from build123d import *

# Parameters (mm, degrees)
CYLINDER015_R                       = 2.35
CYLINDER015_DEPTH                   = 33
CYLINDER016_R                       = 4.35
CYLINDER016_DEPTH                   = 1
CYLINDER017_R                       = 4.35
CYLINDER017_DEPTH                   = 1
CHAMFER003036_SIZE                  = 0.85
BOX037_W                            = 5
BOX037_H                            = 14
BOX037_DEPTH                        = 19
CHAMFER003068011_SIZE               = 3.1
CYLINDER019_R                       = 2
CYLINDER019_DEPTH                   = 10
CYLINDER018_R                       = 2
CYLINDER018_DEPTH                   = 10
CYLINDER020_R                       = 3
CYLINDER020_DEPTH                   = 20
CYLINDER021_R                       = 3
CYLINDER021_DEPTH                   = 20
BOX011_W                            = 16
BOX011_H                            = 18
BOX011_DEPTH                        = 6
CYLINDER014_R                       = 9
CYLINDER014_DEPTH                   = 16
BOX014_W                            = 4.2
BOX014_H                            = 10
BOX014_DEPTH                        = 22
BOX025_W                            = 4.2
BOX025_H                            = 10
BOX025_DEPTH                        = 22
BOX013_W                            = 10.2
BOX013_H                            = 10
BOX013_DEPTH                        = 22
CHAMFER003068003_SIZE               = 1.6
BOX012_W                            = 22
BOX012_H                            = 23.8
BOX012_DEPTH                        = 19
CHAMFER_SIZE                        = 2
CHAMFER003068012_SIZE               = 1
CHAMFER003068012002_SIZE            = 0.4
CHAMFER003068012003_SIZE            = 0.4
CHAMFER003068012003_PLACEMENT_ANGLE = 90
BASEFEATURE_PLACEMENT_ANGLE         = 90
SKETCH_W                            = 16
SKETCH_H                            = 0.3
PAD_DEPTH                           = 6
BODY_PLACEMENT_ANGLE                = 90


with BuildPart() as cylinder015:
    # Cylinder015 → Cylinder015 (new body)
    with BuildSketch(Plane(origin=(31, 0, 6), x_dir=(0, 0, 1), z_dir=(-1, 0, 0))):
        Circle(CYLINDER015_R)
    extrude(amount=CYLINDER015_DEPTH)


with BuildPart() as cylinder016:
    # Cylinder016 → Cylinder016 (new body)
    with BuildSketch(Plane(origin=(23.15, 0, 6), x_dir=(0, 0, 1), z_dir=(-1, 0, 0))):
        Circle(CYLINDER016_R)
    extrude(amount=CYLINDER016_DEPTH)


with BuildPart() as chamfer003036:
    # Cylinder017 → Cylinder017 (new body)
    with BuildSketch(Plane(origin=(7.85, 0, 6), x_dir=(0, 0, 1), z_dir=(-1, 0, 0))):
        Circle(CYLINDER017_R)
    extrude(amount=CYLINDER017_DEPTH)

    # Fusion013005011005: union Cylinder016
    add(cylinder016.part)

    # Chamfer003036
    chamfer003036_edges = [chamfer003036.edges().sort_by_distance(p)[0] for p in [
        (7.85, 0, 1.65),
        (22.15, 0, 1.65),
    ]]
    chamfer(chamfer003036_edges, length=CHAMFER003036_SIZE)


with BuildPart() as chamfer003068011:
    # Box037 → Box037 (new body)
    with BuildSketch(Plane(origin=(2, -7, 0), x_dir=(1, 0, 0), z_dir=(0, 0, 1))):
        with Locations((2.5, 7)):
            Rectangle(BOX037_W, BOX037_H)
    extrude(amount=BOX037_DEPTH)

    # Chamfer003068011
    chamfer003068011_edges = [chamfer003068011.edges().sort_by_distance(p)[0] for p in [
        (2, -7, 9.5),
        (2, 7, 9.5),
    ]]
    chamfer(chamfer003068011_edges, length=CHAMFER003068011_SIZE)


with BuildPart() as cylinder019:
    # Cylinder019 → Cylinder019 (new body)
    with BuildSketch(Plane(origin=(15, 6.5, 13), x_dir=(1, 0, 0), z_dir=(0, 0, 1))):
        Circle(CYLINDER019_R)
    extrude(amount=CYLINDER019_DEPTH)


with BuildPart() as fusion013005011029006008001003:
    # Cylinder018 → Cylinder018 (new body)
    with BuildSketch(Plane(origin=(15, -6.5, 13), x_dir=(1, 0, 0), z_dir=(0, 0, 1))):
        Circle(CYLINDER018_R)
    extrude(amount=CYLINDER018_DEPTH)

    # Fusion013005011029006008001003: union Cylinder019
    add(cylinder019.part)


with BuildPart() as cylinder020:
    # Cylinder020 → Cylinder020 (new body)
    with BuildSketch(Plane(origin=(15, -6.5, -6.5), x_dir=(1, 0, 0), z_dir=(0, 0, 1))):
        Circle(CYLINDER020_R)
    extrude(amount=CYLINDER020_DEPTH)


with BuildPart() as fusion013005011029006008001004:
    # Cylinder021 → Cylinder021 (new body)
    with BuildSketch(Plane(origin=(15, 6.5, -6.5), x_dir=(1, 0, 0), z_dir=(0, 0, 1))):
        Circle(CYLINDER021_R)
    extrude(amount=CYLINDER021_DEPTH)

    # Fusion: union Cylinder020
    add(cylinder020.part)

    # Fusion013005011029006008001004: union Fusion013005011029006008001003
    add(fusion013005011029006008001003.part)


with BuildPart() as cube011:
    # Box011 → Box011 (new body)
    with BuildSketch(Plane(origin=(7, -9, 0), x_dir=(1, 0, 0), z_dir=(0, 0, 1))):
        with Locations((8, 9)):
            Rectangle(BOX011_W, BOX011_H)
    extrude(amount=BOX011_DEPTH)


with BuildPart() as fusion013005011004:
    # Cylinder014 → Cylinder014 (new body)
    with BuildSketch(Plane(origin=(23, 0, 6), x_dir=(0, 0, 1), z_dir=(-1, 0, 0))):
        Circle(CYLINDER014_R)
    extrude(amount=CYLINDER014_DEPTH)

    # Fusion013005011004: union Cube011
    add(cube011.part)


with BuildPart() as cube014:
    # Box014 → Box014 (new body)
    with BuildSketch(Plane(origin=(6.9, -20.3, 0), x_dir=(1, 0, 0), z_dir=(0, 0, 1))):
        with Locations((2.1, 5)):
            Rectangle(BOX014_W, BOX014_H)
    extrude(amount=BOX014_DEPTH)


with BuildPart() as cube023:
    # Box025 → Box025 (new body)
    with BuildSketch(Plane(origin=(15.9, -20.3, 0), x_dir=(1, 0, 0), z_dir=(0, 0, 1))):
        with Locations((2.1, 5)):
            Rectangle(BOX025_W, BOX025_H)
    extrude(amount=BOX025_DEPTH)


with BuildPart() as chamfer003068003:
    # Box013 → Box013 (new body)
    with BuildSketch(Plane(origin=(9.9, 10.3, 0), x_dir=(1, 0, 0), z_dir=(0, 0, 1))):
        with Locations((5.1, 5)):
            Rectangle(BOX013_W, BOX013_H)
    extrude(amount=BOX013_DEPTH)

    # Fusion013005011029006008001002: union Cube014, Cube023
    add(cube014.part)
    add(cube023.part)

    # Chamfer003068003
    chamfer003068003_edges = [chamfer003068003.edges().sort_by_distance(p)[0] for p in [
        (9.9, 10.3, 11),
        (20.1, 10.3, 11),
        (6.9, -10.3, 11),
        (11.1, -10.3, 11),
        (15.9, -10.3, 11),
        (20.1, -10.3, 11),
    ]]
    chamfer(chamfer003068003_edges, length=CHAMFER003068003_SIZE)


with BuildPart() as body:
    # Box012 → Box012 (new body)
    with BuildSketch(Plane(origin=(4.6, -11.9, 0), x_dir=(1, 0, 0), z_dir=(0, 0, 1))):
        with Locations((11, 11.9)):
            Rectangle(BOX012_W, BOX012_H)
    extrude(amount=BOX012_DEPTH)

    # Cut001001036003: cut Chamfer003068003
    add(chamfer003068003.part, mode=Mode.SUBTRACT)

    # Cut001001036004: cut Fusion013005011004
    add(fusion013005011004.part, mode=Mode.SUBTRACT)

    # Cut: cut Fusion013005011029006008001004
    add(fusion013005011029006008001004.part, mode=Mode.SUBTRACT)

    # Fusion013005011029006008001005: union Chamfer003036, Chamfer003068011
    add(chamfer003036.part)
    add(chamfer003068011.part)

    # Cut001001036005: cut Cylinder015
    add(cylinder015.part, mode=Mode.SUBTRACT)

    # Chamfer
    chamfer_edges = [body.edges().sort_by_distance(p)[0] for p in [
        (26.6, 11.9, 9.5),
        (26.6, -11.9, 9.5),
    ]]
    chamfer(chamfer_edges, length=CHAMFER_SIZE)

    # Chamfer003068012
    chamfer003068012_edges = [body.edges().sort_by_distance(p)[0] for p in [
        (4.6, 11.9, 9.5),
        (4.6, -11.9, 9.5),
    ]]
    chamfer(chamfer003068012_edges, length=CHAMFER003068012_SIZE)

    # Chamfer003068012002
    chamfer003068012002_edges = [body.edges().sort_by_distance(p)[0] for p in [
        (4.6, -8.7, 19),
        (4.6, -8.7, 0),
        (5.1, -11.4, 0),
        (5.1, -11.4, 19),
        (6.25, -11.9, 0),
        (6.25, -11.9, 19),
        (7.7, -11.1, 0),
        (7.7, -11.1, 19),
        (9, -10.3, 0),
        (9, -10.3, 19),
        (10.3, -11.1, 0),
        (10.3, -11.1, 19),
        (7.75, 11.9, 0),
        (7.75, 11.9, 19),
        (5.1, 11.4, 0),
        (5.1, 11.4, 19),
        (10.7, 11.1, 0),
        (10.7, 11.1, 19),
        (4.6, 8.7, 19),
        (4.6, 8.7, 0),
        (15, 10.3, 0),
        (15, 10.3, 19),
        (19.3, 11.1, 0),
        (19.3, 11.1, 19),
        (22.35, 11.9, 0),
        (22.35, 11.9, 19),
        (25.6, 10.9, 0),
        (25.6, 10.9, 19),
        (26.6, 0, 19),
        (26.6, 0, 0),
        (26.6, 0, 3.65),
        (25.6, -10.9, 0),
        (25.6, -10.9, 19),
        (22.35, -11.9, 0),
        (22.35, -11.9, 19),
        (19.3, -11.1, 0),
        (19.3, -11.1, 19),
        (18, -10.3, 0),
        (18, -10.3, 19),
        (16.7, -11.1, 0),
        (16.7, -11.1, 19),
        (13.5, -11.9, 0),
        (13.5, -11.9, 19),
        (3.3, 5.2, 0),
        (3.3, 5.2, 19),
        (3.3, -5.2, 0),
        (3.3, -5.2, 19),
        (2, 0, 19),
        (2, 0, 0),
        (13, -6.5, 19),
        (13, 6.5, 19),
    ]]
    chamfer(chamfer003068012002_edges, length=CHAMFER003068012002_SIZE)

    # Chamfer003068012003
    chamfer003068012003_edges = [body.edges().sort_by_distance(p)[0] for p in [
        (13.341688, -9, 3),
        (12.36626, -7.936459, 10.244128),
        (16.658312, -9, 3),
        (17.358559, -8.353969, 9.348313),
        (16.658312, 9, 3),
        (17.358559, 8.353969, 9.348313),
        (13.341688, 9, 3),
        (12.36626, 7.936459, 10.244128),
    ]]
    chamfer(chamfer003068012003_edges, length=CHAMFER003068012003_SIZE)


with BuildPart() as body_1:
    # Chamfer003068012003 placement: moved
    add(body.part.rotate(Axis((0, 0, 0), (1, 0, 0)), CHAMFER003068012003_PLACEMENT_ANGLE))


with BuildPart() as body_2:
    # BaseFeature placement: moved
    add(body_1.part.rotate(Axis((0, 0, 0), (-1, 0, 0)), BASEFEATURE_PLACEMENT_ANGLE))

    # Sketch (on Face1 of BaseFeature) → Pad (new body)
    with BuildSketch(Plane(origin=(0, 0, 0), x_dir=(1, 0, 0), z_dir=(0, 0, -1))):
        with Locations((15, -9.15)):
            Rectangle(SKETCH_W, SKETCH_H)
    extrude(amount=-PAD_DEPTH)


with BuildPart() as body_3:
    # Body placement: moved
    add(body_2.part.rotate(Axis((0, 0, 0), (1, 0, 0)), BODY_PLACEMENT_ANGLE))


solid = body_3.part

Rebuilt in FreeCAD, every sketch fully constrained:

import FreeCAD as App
import Part
import Sketcher
from FreeCAD import Vector
Q = App.Units.Quantity


def edges_at(feature, points):
    """Names of the edges that pass closest to the given points."""
    edges = feature.Shape.Edges
    near = lambda p: min(range(len(edges)), key=lambda i: edges[i].distToShape(Part.Vertex(*p))[0])
    return sorted({f"Edge{near(p) + 1}" for p in points})


def add_polygon(sketch, points):
    """Adds a closed chain of lines whose ends are joined by coincident constraints."""
    first, n = sketch.GeometryCount, len(points)
    for a, b in zip(points, points[1:] + points[:1]):
        sketch.addGeometry(Part.LineSegment(App.Vector(*a, 0), App.Vector(*b, 0)), False)
    for i in range(n):
        sketch.addConstraint(Sketcher.Constraint("Coincident", first + i, 2, first + (i + 1) % n, 1))

doc = App.newDocument("Part")
params = doc.addObject("Spreadsheet::Sheet", "Params")
for row, (alias, value) in enumerate([
    ("sketch1_diameter", "4.7 mm"),
    ("pad1_length", "33 mm"),
    ("sketch2_diameter", "8.7 mm"),
    ("pad2_length", "1 mm"),
    ("sketch3_diameter", "8.7 mm"),
    ("pad3_length", "1 mm"),
    ("chamfer_size", "0.85 mm"),
    ("sketch4_width", "5 mm"),
    ("sketch4_height", "14 mm"),
    ("pad4_length", "19 mm"),
    ("chamfer2_size", "3.1 mm"),
    ("sketch5_diameter", "4 mm"),
    ("pad5_length", "10 mm"),
    ("sketch6_diameter", "4 mm"),
    ("pad6_length", "10 mm"),
    ("sketch7_diameter", "6 mm"),
    ("pad7_length", "20 mm"),
    ("sketch8_diameter", "6 mm"),
    ("pad8_length", "20 mm"),
    ("sketch9_width", "16 mm"),
    ("sketch9_height", "18 mm"),
    ("pad9_length", "6 mm"),
    ("sketch10_diameter", "18 mm"),
    ("pad10_length", "16 mm"),
    ("sketch11_height", "10 mm"),
    ("sketch11_width", "4.2 mm"),
    ("pad11_length", "22 mm"),
    ("sketch12_height", "10 mm"),
    ("sketch12_width", "4.2 mm"),
    ("pad12_length", "22 mm"),
    ("sketch13_height", "10 mm"),
    ("sketch13_width", "10.2 mm"),
    ("pad13_length", "22 mm"),
    ("chamfer3_size", "1.6 mm"),
    ("sketch14_width", "22 mm"),
    ("sketch14_height", "23.8 mm"),
    ("pad14_length", "19 mm"),
    ("chamfer4_size", "2 mm"),
    ("chamfer5_size", "1 mm"),
    ("chamfer6_size", "0.4 mm"),
    ("chamfer7_size", "0.4 mm"),
    ("sketch15_width", "16 mm"),
    ("sketch15_height", "0.3 mm"),
    ("pad15_length", "6 mm"),
], start=1):
    params.set(f"A{row}", alias)
    params.set(f"B{row}", "=" + value)
    params.setAlias(f"B{row}", alias)

body = doc.addObject("PartDesign::Body", "Body")

# Sketch on YZ plane
sketch1 = body.newObject("Sketcher::SketchObject", "Sketch")
sketch1.AttachmentSupport = (doc.getObject("YZ_Plane"), [""])
sketch1.MapMode = "FlatFace"
sketch1.AttachmentOffset = App.Placement(Vector(0, 0, 31), App.Rotation())
sketch1.addGeometry(Part.Circle(Vector(0, 6, 0), Vector(0, 0, 1), 2.4), False)
sketch1.addConstraint([
    Sketcher.Constraint("PointOnObject", 0, 3, -2),
    Sketcher.Constraint("Diameter", 0, Q("4.7 mm")),
    Sketcher.Constraint("DistanceY", -1, 1, 0, 3, Q("6 mm")),
])
sketch1.setExpression("Constraints[1]", "Params.sketch1_diameter")
pad1 = body.newObject("PartDesign::Pad", "Pad")
pad1.Profile = sketch1
pad1.setExpression("Length", "Params.pad1_length")
pad1.Reversed = True
body2 = doc.addObject("PartDesign::Body", "Body001")

# Sketch on YZ plane
sketch2 = body2.newObject("Sketcher::SketchObject", "Sketch001")
sketch2.AttachmentSupport = (doc.getObject("YZ_Plane001"), [""])
sketch2.MapMode = "FlatFace"
sketch2.AttachmentOffset = App.Placement(Vector(0, 0, 23.15), App.Rotation())
sketch2.addGeometry(Part.Circle(Vector(0, 6, 0), Vector(0, 0, 1), 4.3), False)
sketch2.addConstraint([
    Sketcher.Constraint("PointOnObject", 0, 3, -2),
    Sketcher.Constraint("Diameter", 0, Q("8.7 mm")),
    Sketcher.Constraint("DistanceY", -1, 1, 0, 3, Q("6 mm")),
])
sketch2.setExpression("Constraints[1]", "Params.sketch2_diameter")
pad2 = body2.newObject("PartDesign::Pad", "Pad001")
pad2.Profile = sketch2
pad2.setExpression("Length", "Params.pad2_length")
pad2.Reversed = True
body3 = doc.addObject("PartDesign::Body", "Body002")
body3.AllowCompound = True

# Sketch on YZ plane
sketch3 = body3.newObject("Sketcher::SketchObject", "Sketch002")
sketch3.AttachmentSupport = (doc.getObject("YZ_Plane002"), [""])
sketch3.MapMode = "FlatFace"
sketch3.AttachmentOffset = App.Placement(Vector(0, 0, 7.85), App.Rotation())
sketch3.addGeometry(Part.Circle(Vector(0, 6, 0), Vector(0, 0, 1), 4.3), False)
sketch3.addConstraint([
    Sketcher.Constraint("PointOnObject", 0, 3, -2),
    Sketcher.Constraint("Diameter", 0, Q("8.7 mm")),
    Sketcher.Constraint("DistanceY", -1, 1, 0, 3, Q("6 mm")),
])
sketch3.setExpression("Constraints[1]", "Params.sketch3_diameter")
pad3 = body3.newObject("PartDesign::Pad", "Pad002")
pad3.Profile = sketch3
pad3.setExpression("Length", "Params.pad3_length")
pad3.Reversed = True
doc.recompute()

boolean = body3.newObject("PartDesign::Boolean", "Boolean")
boolean.Type = "Fuse"
boolean.addObjects([body2])
doc.recompute()

chamfer = body3.newObject("PartDesign::Chamfer", "Chamfer")
chamfer.Base = (boolean, edges_at(boolean, [(7.85, 0, 1.65), (22.15, 0, 1.65)]))
chamfer.setExpression("Size", "Params.chamfer_size")
body4 = doc.addObject("PartDesign::Body", "Body003")

# Sketch on XY plane
sketch4 = body4.newObject("Sketcher::SketchObject", "Sketch003")
sketch4.AttachmentSupport = (doc.getObject("XY_Plane003"), [""])
sketch4.MapMode = "FlatFace"
add_polygon(sketch4, [(2, 7), (2, -7), (7, -7), (7, 7)])  # lines 0-3
sketch4.addConstraint([
    Sketcher.Constraint("Vertical", 0),
    Sketcher.Constraint("Horizontal", 1),
    Sketcher.Constraint("Vertical", 2),
    Sketcher.Constraint("Horizontal", 3),
    Sketcher.Constraint("DistanceX", 1, 1, 1, 2, Q("5 mm")),
    Sketcher.Constraint("DistanceY", 0, 2, 0, 1, Q("14 mm")),
    Sketcher.Constraint("DistanceX", -1, 1, 0, 2, Q("2 mm")),
    Sketcher.Constraint("DistanceY", 0, 2, -1, 1, Q("7 mm")),
])
sketch4.setExpression("Constraints[8]", "Params.sketch4_width")
sketch4.setExpression("Constraints[9]", "Params.sketch4_height")
pad4 = body4.newObject("PartDesign::Pad", "Pad003")
pad4.Profile = sketch4
pad4.setExpression("Length", "Params.pad4_length")
doc.recompute()

chamfer2 = body4.newObject("PartDesign::Chamfer", "Chamfer001")
chamfer2.Base = (pad4, edges_at(pad4, [(2, -7, 9.5), (2, 7, 9.5)]))
chamfer2.setExpression("Size", "Params.chamfer2_size")
body5 = doc.addObject("PartDesign::Body", "Body004")

# Sketch on XY plane
sketch5 = body5.newObject("Sketcher::SketchObject", "Sketch004")
sketch5.AttachmentSupport = (doc.getObject("XY_Plane004"), [""])
sketch5.MapMode = "FlatFace"
sketch5.AttachmentOffset = App.Placement(Vector(0, 0, 13), App.Rotation())
sketch5.addGeometry(Part.Circle(Vector(15, 6.5, 0), Vector(0, 0, 1), 2), False)
sketch5.addConstraint([
    Sketcher.Constraint("Diameter", 0, Q("4 mm")),
    Sketcher.Constraint("DistanceX", -1, 1, 0, 3, Q("15 mm")),
    Sketcher.Constraint("DistanceY", -1, 1, 0, 3, Q("6.5 mm")),
])
sketch5.setExpression("Constraints[0]", "Params.sketch5_diameter")
pad5 = body5.newObject("PartDesign::Pad", "Pad004")
pad5.Profile = sketch5
pad5.setExpression("Length", "Params.pad5_length")
body6 = doc.addObject("PartDesign::Body", "Body005")
body6.AllowCompound = True

# Sketch on XY plane
sketch6 = body6.newObject("Sketcher::SketchObject", "Sketch005")
sketch6.AttachmentSupport = (doc.getObject("XY_Plane005"), [""])
sketch6.MapMode = "FlatFace"
sketch6.AttachmentOffset = App.Placement(Vector(0, 0, 13), App.Rotation())
sketch6.addGeometry(Part.Circle(Vector(15, -6.5, 0), Vector(0, 0, 1), 2), False)
sketch6.addConstraint([
    Sketcher.Constraint("Diameter", 0, Q("4 mm")),
    Sketcher.Constraint("DistanceX", -1, 1, 0, 3, Q("15 mm")),
    Sketcher.Constraint("DistanceY", 0, 3, -1, 1, Q("6.5 mm")),
])
sketch6.setExpression("Constraints[0]", "Params.sketch6_diameter")
pad6 = body6.newObject("PartDesign::Pad", "Pad005")
pad6.Profile = sketch6
pad6.setExpression("Length", "Params.pad6_length")
doc.recompute()

boolean2 = body6.newObject("PartDesign::Boolean", "Boolean001")
boolean2.Type = "Fuse"
boolean2.addObjects([body5])
body7 = doc.addObject("PartDesign::Body", "Body006")

# Sketch on XY plane
sketch7 = body7.newObject("Sketcher::SketchObject", "Sketch006")
sketch7.AttachmentSupport = (doc.getObject("XY_Plane006"), [""])
sketch7.MapMode = "FlatFace"
sketch7.AttachmentOffset = App.Placement(Vector(0, 0, -6.5), App.Rotation())
sketch7.addGeometry(Part.Circle(Vector(15, -6.5, 0), Vector(0, 0, 1), 3), False)
sketch7.addConstraint([
    Sketcher.Constraint("Diameter", 0, Q("6 mm")),
    Sketcher.Constraint("DistanceX", -1, 1, 0, 3, Q("15 mm")),
    Sketcher.Constraint("DistanceY", 0, 3, -1, 1, Q("6.5 mm")),
])
sketch7.setExpression("Constraints[0]", "Params.sketch7_diameter")
pad7 = body7.newObject("PartDesign::Pad", "Pad006")
pad7.Profile = sketch7
pad7.setExpression("Length", "Params.pad7_length")
body8 = doc.addObject("PartDesign::Body", "Body007")
body8.AllowCompound = True

# Sketch on XY plane
sketch8 = body8.newObject("Sketcher::SketchObject", "Sketch007")
sketch8.AttachmentSupport = (doc.getObject("XY_Plane007"), [""])
sketch8.MapMode = "FlatFace"
sketch8.AttachmentOffset = App.Placement(Vector(0, 0, -6.5), App.Rotation())
sketch8.addGeometry(Part.Circle(Vector(15, 6.5, 0), Vector(0, 0, 1), 3), False)
sketch8.addConstraint([
    Sketcher.Constraint("Diameter", 0, Q("6 mm")),
    Sketcher.Constraint("DistanceX", -1, 1, 0, 3, Q("15 mm")),
    Sketcher.Constraint("DistanceY", -1, 1, 0, 3, Q("6.5 mm")),
])
sketch8.setExpression("Constraints[0]", "Params.sketch8_diameter")
pad8 = body8.newObject("PartDesign::Pad", "Pad007")
pad8.Profile = sketch8
pad8.setExpression("Length", "Params.pad8_length")
doc.recompute()

boolean3 = body8.newObject("PartDesign::Boolean", "Boolean002")
boolean3.Type = "Fuse"
boolean3.addObjects([body7])
doc.recompute()

boolean4 = body8.newObject("PartDesign::Boolean", "Boolean003")
boolean4.Type = "Fuse"
boolean4.addObjects([body6])
body9 = doc.addObject("PartDesign::Body", "Body008")

# Sketch on XY plane
sketch9 = body9.newObject("Sketcher::SketchObject", "Sketch008")
sketch9.AttachmentSupport = (doc.getObject("XY_Plane008"), [""])
sketch9.MapMode = "FlatFace"
add_polygon(sketch9, [(7, 9), (7, -9), (23, -9), (23, 9)])  # lines 0-3
sketch9.addConstraint([
    Sketcher.Constraint("Vertical", 0),
    Sketcher.Constraint("Horizontal", 1),
    Sketcher.Constraint("Vertical", 2),
    Sketcher.Constraint("Horizontal", 3),
    Sketcher.Constraint("DistanceX", 1, 1, 1, 2, Q("16 mm")),
    Sketcher.Constraint("DistanceY", 0, 2, 0, 1, Q("18 mm")),
    Sketcher.Constraint("DistanceX", -1, 1, 0, 2, Q("7 mm")),
    Sketcher.Constraint("DistanceY", 0, 2, -1, 1, Q("9 mm")),
])
sketch9.setExpression("Constraints[8]", "Params.sketch9_width")
sketch9.setExpression("Constraints[9]", "Params.sketch9_height")
pad9 = body9.newObject("PartDesign::Pad", "Pad008")
pad9.Profile = sketch9
pad9.setExpression("Length", "Params.pad9_length")
body10 = doc.addObject("PartDesign::Body", "Body009")

# Sketch on YZ plane
sketch10 = body10.newObject("Sketcher::SketchObject", "Sketch009")
sketch10.AttachmentSupport = (doc.getObject("YZ_Plane009"), [""])
sketch10.MapMode = "FlatFace"
sketch10.AttachmentOffset = App.Placement(Vector(0, 0, 23), App.Rotation())
sketch10.addGeometry(Part.Circle(Vector(0, 6, 0), Vector(0, 0, 1), 9), False)
sketch10.addConstraint([
    Sketcher.Constraint("PointOnObject", 0, 3, -2),
    Sketcher.Constraint("Diameter", 0, Q("18 mm")),
    Sketcher.Constraint("DistanceY", -1, 1, 0, 3, Q("6 mm")),
])
sketch10.setExpression("Constraints[1]", "Params.sketch10_diameter")
pad10 = body10.newObject("PartDesign::Pad", "Pad009")
pad10.Profile = sketch10
pad10.setExpression("Length", "Params.pad10_length")
pad10.Reversed = True
doc.recompute()

boolean5 = body10.newObject("PartDesign::Boolean", "Boolean004")
boolean5.Type = "Fuse"
boolean5.addObjects([body9])
body11 = doc.addObject("PartDesign::Body", "Body010")

# Sketch on XY plane
sketch11 = body11.newObject("Sketcher::SketchObject", "Sketch010")
sketch11.AttachmentSupport = (doc.getObject("XY_Plane010"), [""])
sketch11.MapMode = "FlatFace"
add_polygon(sketch11, [(6.9, -10.3), (6.9, -20.3), (11.1, -20.3), (11.1, -10.3)])  # lines 0-3
sketch11.addConstraint([
    Sketcher.Constraint("Vertical", 0),
    Sketcher.Constraint("Horizontal", 1),
    Sketcher.Constraint("Vertical", 2),
    Sketcher.Constraint("Horizontal", 3),
    Sketcher.Constraint("DistanceY", 0, 2, 0, 1, Q("10 mm")),
    Sketcher.Constraint("DistanceX", 1, 1, 1, 2, Q("4.2 mm")),
    Sketcher.Constraint("DistanceX", -1, 1, 0, 2, Q("6.9 mm")),
    Sketcher.Constraint("DistanceY", 0, 2, -1, 1, Q("20.3 mm")),
])
sketch11.setExpression("Constraints[8]", "Params.sketch11_height")
sketch11.setExpression("Constraints[9]", "Params.sketch11_width")
pad11 = body11.newObject("PartDesign::Pad", "Pad010")
pad11.Profile = sketch11
pad11.setExpression("Length", "Params.pad11_length")
body12 = doc.addObject("PartDesign::Body", "Body011")

# Sketch on XY plane
sketch12 = body12.newObject("Sketcher::SketchObject", "Sketch011")
sketch12.AttachmentSupport = (doc.getObject("XY_Plane011"), [""])
sketch12.MapMode = "FlatFace"
add_polygon(sketch12, [(15.9, -10.3), (15.9, -20.3), (20.1, -20.3), (20.1, -10.3)])  # lines 0-3
sketch12.addConstraint([
    Sketcher.Constraint("Vertical", 0),
    Sketcher.Constraint("Horizontal", 1),
    Sketcher.Constraint("Vertical", 2),
    Sketcher.Constraint("Horizontal", 3),
    Sketcher.Constraint("DistanceY", 0, 2, 0, 1, Q("10 mm")),
    Sketcher.Constraint("DistanceX", 1, 1, 1, 2, Q("4.2 mm")),
    Sketcher.Constraint("DistanceX", -1, 1, 0, 2, Q("15.9 mm")),
    Sketcher.Constraint("DistanceY", 0, 2, -1, 1, Q("20.3 mm")),
])
sketch12.setExpression("Constraints[8]", "Params.sketch12_height")
sketch12.setExpression("Constraints[9]", "Params.sketch12_width")
pad12 = body12.newObject("PartDesign::Pad", "Pad011")
pad12.Profile = sketch12
pad12.setExpression("Length", "Params.pad12_length")
body13 = doc.addObject("PartDesign::Body", "Body012")
body13.AllowCompound = True

# Sketch on XY plane
sketch13 = body13.newObject("Sketcher::SketchObject", "Sketch012")
sketch13.AttachmentSupport = (doc.getObject("XY_Plane012"), [""])
sketch13.MapMode = "FlatFace"
add_polygon(sketch13, [(10, 20), (10, 10), (20, 10), (20, 20)])  # lines 0-3
sketch13.addConstraint([
    Sketcher.Constraint("Vertical", 0),
    Sketcher.Constraint("Horizontal", 1),
    Sketcher.Constraint("Vertical", 2),
    Sketcher.Constraint("Horizontal", 3),
    Sketcher.Constraint("DistanceY", 0, 2, 0, 1, Q("10 mm")),
    Sketcher.Constraint("DistanceX", 1, 1, 1, 2, Q("10.2 mm")),
    Sketcher.Constraint("DistanceX", -1, 1, 0, 2, Q("9.9 mm")),
    Sketcher.Constraint("DistanceY", -1, 1, 0, 2, Q("10.3 mm")),
])
sketch13.setExpression("Constraints[8]", "Params.sketch13_height")
sketch13.setExpression("Constraints[9]", "Params.sketch13_width")
pad13 = body13.newObject("PartDesign::Pad", "Pad012")
pad13.Profile = sketch13
pad13.setExpression("Length", "Params.pad13_length")
doc.recompute()

boolean6 = body13.newObject("PartDesign::Boolean", "Boolean005")
boolean6.Type = "Fuse"
boolean6.addObjects([body11])
doc.recompute()

boolean7 = body13.newObject("PartDesign::Boolean", "Boolean006")
boolean7.Type = "Fuse"
boolean7.addObjects([body12])
doc.recompute()

chamfer3 = body13.newObject("PartDesign::Chamfer", "Chamfer002")
chamfer3.Base = (boolean7, edges_at(boolean7, [
    (9.9, 10.3, 11),
    (20.1, 10.3, 11),
    (6.9, -10.3, 11),
    (11.1, -10.3, 11),
    (15.9, -10.3, 11),
    (20.1, -10.3, 11),
]))
chamfer3.setExpression("Size", "Params.chamfer3_size")
body14 = doc.addObject("PartDesign::Body", "Body013")

# Sketch on XY plane
sketch14 = body14.newObject("Sketcher::SketchObject", "Sketch013")
sketch14.AttachmentSupport = (doc.getObject("XY_Plane013"), [""])
sketch14.MapMode = "FlatFace"
add_polygon(sketch14, [(5, 12), (5, -12), (27, -12), (27, 12)])  # lines 0-3
sketch14.addConstraint([
    Sketcher.Constraint("Vertical", 0),
    Sketcher.Constraint("Horizontal", 1),
    Sketcher.Constraint("Vertical", 2),
    Sketcher.Constraint("Horizontal", 3),
    Sketcher.Constraint("DistanceX", 1, 1, 1, 2, Q("22 mm")),
    Sketcher.Constraint("DistanceY", 0, 2, 0, 1, Q("23.8 mm")),
    Sketcher.Constraint("DistanceX", -1, 1, 0, 2, Q("4.6 mm")),
    Sketcher.Constraint("DistanceY", 0, 2, -1, 1, Q("11.9 mm")),
])
sketch14.setExpression("Constraints[8]", "Params.sketch14_width")
sketch14.setExpression("Constraints[9]", "Params.sketch14_height")
pad14 = body14.newObject("PartDesign::Pad", "Pad013")
pad14.Profile = sketch14
pad14.setExpression("Length", "Params.pad14_length")
doc.recompute()

boolean8 = body14.newObject("PartDesign::Boolean", "Boolean007")
boolean8.Type = "Cut"
boolean8.addObjects([body13])
doc.recompute()

boolean9 = body14.newObject("PartDesign::Boolean", "Boolean008")
boolean9.Type = "Cut"
boolean9.addObjects([body10])
doc.recompute()

boolean10 = body14.newObject("PartDesign::Boolean", "Boolean009")
boolean10.Type = "Cut"
boolean10.addObjects([body8])
doc.recompute()

boolean11 = body14.newObject("PartDesign::Boolean", "Boolean010")
boolean11.Type = "Fuse"
boolean11.addObjects([body3])
doc.recompute()

boolean12 = body14.newObject("PartDesign::Boolean", "Boolean011")
boolean12.Type = "Fuse"
boolean12.addObjects([body4])
doc.recompute()

boolean13 = body14.newObject("PartDesign::Boolean", "Boolean012")
boolean13.Type = "Cut"
boolean13.addObjects([body])
doc.recompute()

chamfer4 = body14.newObject("PartDesign::Chamfer", "Chamfer003")
chamfer4.Base = (boolean13, edges_at(boolean13, [(26.6, 11.9, 9.5), (26.6, -11.9, 9.5)]))
chamfer4.setExpression("Size", "Params.chamfer4_size")
doc.recompute()

chamfer5 = body14.newObject("PartDesign::Chamfer", "Chamfer004")
chamfer5.Base = (chamfer4, edges_at(chamfer4, [(4.6, 11.9, 9.5), (4.6, -11.9, 9.5)]))
chamfer5.setExpression("Size", "Params.chamfer5_size")
doc.recompute()

chamfer6 = body14.newObject("PartDesign::Chamfer", "Chamfer005")
chamfer6.Base = (chamfer5, edges_at(chamfer5, [
    (4.6, -8.7, 19),
    (4.6, -8.7, 0),
    (5.1, -11.4, 0),
    (5.1, -11.4, 19),
    (6.25, -11.9, 0),
    (6.25, -11.9, 19),
    (7.7, -11.1, 0),
    (7.7, -11.1, 19),
    (9, -10.3, 0),
    (9, -10.3, 19),
    (10.3, -11.1, 0),
    (10.3, -11.1, 19),
    (7.75, 11.9, 0),
    (7.75, 11.9, 19),
    (5.1, 11.4, 0),
    (5.1, 11.4, 19),
    (10.7, 11.1, 0),
    (10.7, 11.1, 19),
    (4.6, 8.7, 19),
    (4.6, 8.7, 0),
    (15, 10.3, 0),
    (15, 10.3, 19),
    (19.3, 11.1, 0),
    (19.3, 11.1, 19),
    (22.35, 11.9, 0),
    (22.35, 11.9, 19),
    (25.6, 10.9, 0),
    (25.6, 10.9, 19),
    (26.6, 0, 19),
    (26.6, 0, 0),
    (26.6, 0, 3.65),
    (25.6, -10.9, 0),
    (25.6, -10.9, 19),
    (22.35, -11.9, 0),
    (22.35, -11.9, 19),
    (19.3, -11.1, 0),
    (19.3, -11.1, 19),
    (18, -10.3, 0),
    (18, -10.3, 19),
    (16.7, -11.1, 0),
    (16.7, -11.1, 19),
    (13.5, -11.9, 0),
    (13.5, -11.9, 19),
    (3.3, 5.2, 0),
    (3.3, 5.2, 19),
    (3.3, -5.2, 0),
    (3.3, -5.2, 19),
    (2, 0, 19),
    (2, 0, 0),
    (13, -6.5, 19),
    (13, 6.5, 19),
]))
chamfer6.setExpression("Size", "Params.chamfer6_size")
doc.recompute()

chamfer7 = body14.newObject("PartDesign::Chamfer", "Chamfer006")
chamfer7.Base = (chamfer6, edges_at(chamfer6, [
    (13.342, -9, 3),
    (12.366, -7.936, 10.244),
    (16.658, -9, 3),
    (17.634, -7.936, 10.244),
    (16.658, 9, 3),
    (17.634, 7.936, 10.244),
    (13.342, 9, 3),
    (12.366, 7.936, 10.244),
]))
chamfer7.setExpression("Size", "Params.chamfer7_size")
body15 = doc.addObject("PartDesign::Body", "Body014")
doc.recompute()

body14.Placement = App.Placement(Vector(0, 0, 0), App.Rotation(Vector(1, 0, 0), 90))
boolean14 = body15.newObject("PartDesign::Boolean", "Boolean013")
boolean14.Type = "Fuse"
boolean14.addObjects([body14])
body16 = doc.addObject("PartDesign::Body", "Body015")
doc.recompute()

body15.Placement = App.Placement(Vector(0, 0, 0), App.Rotation(Vector(-1, 0, 0), 90))
boolean15 = body16.newObject("PartDesign::Boolean", "Boolean014")
boolean15.Type = "Fuse"
boolean15.addObjects([body15])

# Sketch on XY plane
sketch15 = body16.newObject("Sketcher::SketchObject", "Sketch014")
sketch15.AttachmentSupport = (doc.getObject("XY_Plane015"), [""])
sketch15.MapMode = "FlatFace"
add_polygon(sketch15, [(7, 9), (7, 9.3), (23, 9.3), (23, 9)])  # lines 0-3
sketch15.addConstraint([
    Sketcher.Constraint("Vertical", 0),
    Sketcher.Constraint("Horizontal", 1),
    Sketcher.Constraint("Vertical", 2),
    Sketcher.Constraint("Horizontal", 3),
    Sketcher.Constraint("DistanceX", 1, 1, 1, 2, Q("16 mm")),
    Sketcher.Constraint("DistanceY", 0, 1, 0, 2, Q("0.3 mm")),
    Sketcher.Constraint("DistanceX", -1, 1, 0, 2, Q("7 mm")),
    Sketcher.Constraint("DistanceY", -1, 1, 2, 2, Q("9 mm")),
])
sketch15.setExpression("Constraints[8]", "Params.sketch15_width")
sketch15.setExpression("Constraints[9]", "Params.sketch15_height")
pad15 = body16.newObject("PartDesign::Pad", "Pad014")
pad15.Profile = sketch15
pad15.setExpression("Length", "Params.pad15_length")
body17 = doc.addObject("PartDesign::Body", "Body016")
doc.recompute()

body16.Placement = App.Placement(Vector(0, 0, 0), App.Rotation(Vector(1, 0, 0), 90))
boolean16 = body17.newObject("PartDesign::Boolean", "Boolean015")
boolean16.Type = "Fuse"
boolean16.addObjects([body16])

doc.recompute()
